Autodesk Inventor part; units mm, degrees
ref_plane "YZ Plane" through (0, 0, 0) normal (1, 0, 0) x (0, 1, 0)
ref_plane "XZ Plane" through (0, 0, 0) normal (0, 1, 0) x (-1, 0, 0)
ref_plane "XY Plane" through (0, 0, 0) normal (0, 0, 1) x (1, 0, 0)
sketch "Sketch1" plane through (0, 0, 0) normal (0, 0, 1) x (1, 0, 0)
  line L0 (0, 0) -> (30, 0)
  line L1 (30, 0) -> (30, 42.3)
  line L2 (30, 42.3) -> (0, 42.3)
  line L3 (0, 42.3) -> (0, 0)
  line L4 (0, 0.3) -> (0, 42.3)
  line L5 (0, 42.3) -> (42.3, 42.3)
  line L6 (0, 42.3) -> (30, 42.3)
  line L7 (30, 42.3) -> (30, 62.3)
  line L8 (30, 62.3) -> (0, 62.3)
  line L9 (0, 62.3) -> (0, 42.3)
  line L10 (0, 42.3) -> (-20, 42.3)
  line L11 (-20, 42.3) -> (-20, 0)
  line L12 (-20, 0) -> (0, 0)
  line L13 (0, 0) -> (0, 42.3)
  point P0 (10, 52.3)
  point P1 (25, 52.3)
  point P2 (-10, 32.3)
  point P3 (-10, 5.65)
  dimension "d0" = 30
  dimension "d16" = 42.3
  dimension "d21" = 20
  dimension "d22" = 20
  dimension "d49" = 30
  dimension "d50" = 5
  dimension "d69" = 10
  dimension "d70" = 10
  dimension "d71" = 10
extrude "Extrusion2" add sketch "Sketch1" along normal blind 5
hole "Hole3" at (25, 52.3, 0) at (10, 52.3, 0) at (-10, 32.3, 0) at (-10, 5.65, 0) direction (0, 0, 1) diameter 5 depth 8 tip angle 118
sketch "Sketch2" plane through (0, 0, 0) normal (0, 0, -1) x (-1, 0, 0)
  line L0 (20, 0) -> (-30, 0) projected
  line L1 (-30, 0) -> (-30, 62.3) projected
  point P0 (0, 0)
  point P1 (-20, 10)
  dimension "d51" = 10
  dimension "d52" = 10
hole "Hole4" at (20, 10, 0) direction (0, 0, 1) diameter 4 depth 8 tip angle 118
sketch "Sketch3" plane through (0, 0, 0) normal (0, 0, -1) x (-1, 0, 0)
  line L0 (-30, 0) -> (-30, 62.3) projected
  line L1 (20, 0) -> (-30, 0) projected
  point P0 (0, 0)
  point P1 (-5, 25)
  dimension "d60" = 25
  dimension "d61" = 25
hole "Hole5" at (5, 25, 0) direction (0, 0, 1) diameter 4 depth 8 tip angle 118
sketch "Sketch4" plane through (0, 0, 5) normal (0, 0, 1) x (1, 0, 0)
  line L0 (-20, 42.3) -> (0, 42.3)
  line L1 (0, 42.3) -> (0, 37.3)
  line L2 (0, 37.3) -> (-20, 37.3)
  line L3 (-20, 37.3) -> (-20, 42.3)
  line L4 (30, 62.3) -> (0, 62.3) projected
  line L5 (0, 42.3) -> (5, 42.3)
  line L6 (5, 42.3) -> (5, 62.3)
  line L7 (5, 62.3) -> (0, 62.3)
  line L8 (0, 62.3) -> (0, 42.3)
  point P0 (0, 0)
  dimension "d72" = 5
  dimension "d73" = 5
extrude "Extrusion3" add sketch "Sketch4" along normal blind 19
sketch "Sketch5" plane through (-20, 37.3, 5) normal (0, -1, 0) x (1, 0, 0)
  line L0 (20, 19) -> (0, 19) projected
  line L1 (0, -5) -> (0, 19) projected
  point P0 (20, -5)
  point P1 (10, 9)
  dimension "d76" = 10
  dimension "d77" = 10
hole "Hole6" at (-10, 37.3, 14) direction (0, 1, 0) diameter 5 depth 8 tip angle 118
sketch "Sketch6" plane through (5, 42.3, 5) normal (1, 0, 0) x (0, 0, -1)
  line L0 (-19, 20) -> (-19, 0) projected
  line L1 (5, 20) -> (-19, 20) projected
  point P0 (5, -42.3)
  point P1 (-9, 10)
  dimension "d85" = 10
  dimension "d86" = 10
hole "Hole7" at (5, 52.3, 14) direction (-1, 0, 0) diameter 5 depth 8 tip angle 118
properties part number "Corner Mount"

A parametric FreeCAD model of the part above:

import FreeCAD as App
import Part
import Sketcher

V = App.Vector
Q = App.Units.Quantity

doc = App.newDocument("Part")
body = doc.addObject("PartDesign::Body", "Body")

# Sketch on XY plane
sketch1 = body.newObject("Sketcher::SketchObject", "Sketch")
sketch1.AttachmentSupport = (doc.getObject("XY_Plane"), [""])
sketch1.MapMode = "FlatFace"
sketch1.addGeometry(Part.LineSegment(V(30, 0, 0), V(30, 62, 0)), False)
sketch1.addGeometry(Part.LineSegment(V(30, 62, 0), V(0, 62, 0)), False)
sketch1.addGeometry(Part.LineSegment(V(0, 62, 0), V(0, 42, 0)), False)
sketch1.addGeometry(Part.LineSegment(V(0, 42, 0), V(-20, 42, 0)), False)
sketch1.addGeometry(Part.LineSegment(V(-20, 42, 0), V(-20, 0, 0)), False)
sketch1.addGeometry(Part.LineSegment(V(-20, 0, 0), V(30, 0, 0)), False)
sketch1.addConstraint(Sketcher.Constraint("Coincident", 0, 2, 1, 1))
sketch1.addConstraint(Sketcher.Constraint("Coincident", 1, 2, 2, 1))
sketch1.addConstraint(Sketcher.Constraint("Coincident", 2, 2, 3, 1))
sketch1.addConstraint(Sketcher.Constraint("Coincident", 3, 2, 4, 1))
sketch1.addConstraint(Sketcher.Constraint("Coincident", 4, 2, 5, 1))
sketch1.addConstraint(Sketcher.Constraint("Coincident", 5, 2, 0, 1))
sketch1.addConstraint(Sketcher.Constraint("Vertical", 0))
sketch1.addConstraint(Sketcher.Constraint("Horizontal", 1))
sketch1.addConstraint(Sketcher.Constraint("Vertical", 2))
sketch1.addConstraint(Sketcher.Constraint("Horizontal", 3))
sketch1.addConstraint(Sketcher.Constraint("Vertical", 4))
sketch1.addConstraint(Sketcher.Constraint("Horizontal", 5))
sketch1.addConstraint(Sketcher.Constraint("PointOnObject", 1, 2, -2))
sketch1.addConstraint(Sketcher.Constraint("PointOnObject", 4, 2, -1))
sketch1.addConstraint(Sketcher.Constraint("Equal", 3, 2))
sketch1.addConstraint(Sketcher.Constraint("DistanceX", 1, 2, 1, 1, Q("30 mm")))
sketch1.addConstraint(Sketcher.Constraint("DistanceX", 3, 2, 3, 1, Q("20 mm")))
sketch1.addConstraint(Sketcher.Constraint("DistanceY", 4, 2, 4, 1, Q("42.3 mm")))
pad1 = body.newObject("PartDesign::Pad", "Pad")
pad1.Profile = sketch1
pad1.Length = 5

# Sketch on XY plane
sketch2 = body.newObject("Sketcher::SketchObject", "Sketch001")
sketch2.AttachmentSupport = (doc.getObject("XY_Plane"), [""])
sketch2.MapMode = "FlatFace"
sketch2.addGeometry(Part.Circle(V(25, 52.3, 0), V(0, 0, 1), 2.5), False)
sketch2.addGeometry(Part.Circle(V(10, 52.3, 0), V(0, 0, 1), 2.5), False)
sketch2.addGeometry(Part.Circle(V(-10, 32.3, 0), V(0, 0, 1), 2.5), False)
sketch2.addGeometry(Part.Circle(V(-10, 5.7, 0), V(0, 0, 1), 2.5), False)
sketch2.addConstraint(Sketcher.Constraint("Equal", 0, 1))
sketch2.addConstraint(Sketcher.Constraint("Equal", 1, 2))
sketch2.addConstraint(Sketcher.Constraint("Equal", 2, 3))
sketch2.addConstraint(Sketcher.Constraint("Horizontal", 0, 3, 1, 3))
sketch2.addConstraint(Sketcher.Constraint("Vertical", 2, 3, 3, 3))
sketch2.addConstraint(Sketcher.Constraint("Diameter", 0, Q("5 mm")))
sketch2.addConstraint(Sketcher.Constraint("DistanceX", -1, 1, 0, 3, Q("25 mm")))
sketch2.addConstraint(Sketcher.Constraint("DistanceX", -1, 1, 1, 3, Q("10 mm")))
sketch2.addConstraint(Sketcher.Constraint("DistanceX", 2, 3, -1, 1, Q("10 mm")))
sketch2.addConstraint(Sketcher.Constraint("DistanceY", 2, 3, 1, 3, Q("20 mm")))
sketch2.addConstraint(Sketcher.Constraint("DistanceY", -1, 1, 0, 3, Q("52.3 mm")))
sketch2.addConstraint(Sketcher.Constraint("DistanceY", -1, 1, 3, 3, Q("5.65 mm")))
doc.recompute()
hole = body.newObject("PartDesign::Hole", "Hole")
hole.Profile = sketch2
hole.ThreadType = "None"
hole.Diameter = 5
hole.DepthType = "Dimension"
hole.Depth = 8
hole.DrillPoint = "Angled"
hole.DrillPointAngle = 118
hole.Reversed = True

# Sketch on XY plane
sketch3 = body.newObject("Sketcher::SketchObject", "Sketch002")
sketch3.AttachmentSupport = (doc.getObject("XY_Plane"), [""])
sketch3.MapMode = "FlatFace"
sketch3.addGeometry(Part.Circle(V(20, 10, 0), V(0, 0, 1), 2), False)
sketch3.addConstraint(Sketcher.Constraint("Diameter", 0, Q("4 mm")))
sketch3.addConstraint(Sketcher.Constraint("DistanceX", -1, 1, 0, 3, Q("20 mm")))
sketch3.addConstraint(Sketcher.Constraint("DistanceY", -1, 1, 0, 3, Q("10 mm")))
doc.recompute()
hole2 = body.newObject("PartDesign::Hole", "Hole001")
hole2.Profile = sketch3
hole2.ThreadType = "None"
hole2.Diameter = 4
hole2.DepthType = "Dimension"
hole2.Depth = 8
hole2.DrillPoint = "Angled"
hole2.DrillPointAngle = 118
hole2.Reversed = True

# Sketch on XY plane
sketch4 = body.newObject("Sketcher::SketchObject", "Sketch003")
sketch4.AttachmentSupport = (doc.getObject("XY_Plane"), [""])
sketch4.MapMode = "FlatFace"
sketch4.addGeometry(Part.Circle(V(5, 25, 0), V(0, 0, 1), 2), False)
sketch4.addConstraint(Sketcher.Constraint("Diameter", 0, Q("4 mm")))
sketch4.addConstraint(Sketcher.Constraint("DistanceX", -1, 1, 0, 3, Q("5 mm")))
sketch4.addConstraint(Sketcher.Constraint("DistanceY", -1, 1, 0, 3, Q("25 mm")))
doc.recompute()
hole3 = body.newObject("PartDesign::Hole", "Hole002")
hole3.Profile = sketch4
hole3.ThreadType = "None"
hole3.Diameter = 4
hole3.DepthType = "Dimension"
hole3.Depth = 8
hole3.DrillPoint = "Angled"
hole3.DrillPointAngle = 118
hole3.Reversed = True

# Sketch on XY plane
sketch5 = body.newObject("Sketcher::SketchObject", "Sketch004")
sketch5.AttachmentSupport = (doc.getObject("XY_Plane"), [""])
sketch5.MapMode = "FlatFace"
sketch5.AttachmentOffset = App.Placement(V(0, 0, 5), App.Rotation())
sketch5.addGeometry(Part.LineSegment(V(0, 62, 0), V(0, 42, 0)), False)
sketch5.addGeometry(Part.LineSegment(V(0, 42, 0), V(5, 42, 0)), False)
sketch5.addGeometry(Part.LineSegment(V(5, 42, 0), V(5, 62, 0)), False)
sketch5.addGeometry(Part.LineSegment(V(5, 62, 0), V(0, 62, 0)), False)
sketch5.addGeometry(Part.LineSegment(V(0, 42, 0), V(-20, 42, 0)), False)
sketch5.addGeometry(Part.LineSegment(V(-20, 42, 0), V(-20, 37, 0)), False)
sketch5.addGeometry(Part.LineSegment(V(-20, 37, 0), V(0, 37, 0)), False)
sketch5.addGeometry(Part.LineSegment(V(0, 37, 0), V(0, 42, 0)), False)
sketch5.addConstraint(Sketcher.Constraint("Coincident", 0, 2, 1, 1))
sketch5.addConstraint(Sketcher.Constraint("Coincident", 1, 2, 2, 1))
sketch5.addConstraint(Sketcher.Constraint("Coincident", 2, 2, 3, 1))
sketch5.addConstraint(Sketcher.Constraint("Coincident", 3, 2, 0, 1))
sketch5.addConstraint(Sketcher.Constraint("Coincident", 4, 2, 5, 1))
sketch5.addConstraint(Sketcher.Constraint("Coincident", 5, 2, 6, 1))
sketch5.addConstraint(Sketcher.Constraint("Coincident", 6, 2, 7, 1))
sketch5.addConstraint(Sketcher.Constraint("Coincident", 7, 2, 4, 1))
sketch5.addConstraint(Sketcher.Constraint("Vertical", 0))
sketch5.addConstraint(Sketcher.Constraint("Horizontal", 1))
sketch5.addConstraint(Sketcher.Constraint("Vertical", 2))
sketch5.addConstraint(Sketcher.Constraint("Horizontal", 3))
sketch5.addConstraint(Sketcher.Constraint("Horizontal", 4))
sketch5.addConstraint(Sketcher.Constraint("Vertical", 5))
sketch5.addConstraint(Sketcher.Constraint("Horizontal", 6))
sketch5.addConstraint(Sketcher.Constraint("Vertical", 7))
sketch5.addConstraint(Sketcher.Constraint("Coincident", 7, 2, 0, 2))
sketch5.addConstraint(Sketcher.Constraint("PointOnObject", 0, 2, -2))
sketch5.addConstraint(Sketcher.Constraint("Equal", 6, 0))
sketch5.addConstraint(Sketcher.Constraint("Equal", 3, 5))
sketch5.addConstraint(Sketcher.Constraint("DistanceX", 1, 1, 1, 2, Q("5 mm")))
sketch5.addConstraint(Sketcher.Constraint("DistanceX", 4, 2, 4, 1, Q("20 mm")))
sketch5.addConstraint(Sketcher.Constraint("DistanceY", -1, 1, 0, 2, Q("42.3 mm")))
pad2 = body.newObject("PartDesign::Pad", "Pad001")
pad2.Profile = sketch5
pad2.Length = 19

# Sketch on XZ plane
sketch6 = body.newObject("Sketcher::SketchObject", "Sketch005")
sketch6.AttachmentSupport = (doc.getObject("XZ_Plane"), [""])
sketch6.MapMode = "FlatFace"
sketch6.AttachmentOffset = App.Placement(V(0, 0, -37.3), App.Rotation())
sketch6.addGeometry(Part.Circle(V(-10, 14, 0), V(0, 0, 1), 2.5), False)
sketch6.addConstraint(Sketcher.Constraint("Diameter", 0, Q("5 mm")))
sketch6.addConstraint(Sketcher.Constraint("DistanceX", 0, 3, -1, 1, Q("10 mm")))
sketch6.addConstraint(Sketcher.Constraint("DistanceY", -1, 1, 0, 3, Q("14 mm")))
doc.recompute()
hole4 = body.newObject("PartDesign::Hole", "Hole003")
hole4.Profile = sketch6
hole4.ThreadType = "None"
hole4.Diameter = 5
hole4.DepthType = "Dimension"
hole4.Depth = 8
hole4.DrillPoint = "Angled"
hole4.DrillPointAngle = 118

# Sketch on YZ plane
sketch7 = body.newObject("Sketcher::SketchObject", "Sketch006")
sketch7.AttachmentSupport = (doc.getObject("YZ_Plane"), [""])
sketch7.MapMode = "FlatFace"
sketch7.AttachmentOffset = App.Placement(V(0, 0, 5), App.Rotation())
sketch7.addGeometry(Part.Circle(V(52.3, 14, 0), V(0, 0, 1), 2.5), False)
sketch7.addConstraint(Sketcher.Constraint("Diameter", 0, Q("5 mm")))
sketch7.addConstraint(Sketcher.Constraint("DistanceY", -1, 1, 0, 3, Q("14 mm")))
sketch7.addConstraint(Sketcher.Constraint("DistanceX", -1, 1, 0, 3, Q("52.3 mm")))
doc.recompute()
hole5 = body.newObject("PartDesign::Hole", "Hole004")
hole5.Profile = sketch7
hole5.ThreadType = "None"
hole5.Diameter = 5
hole5.DepthType = "Dimension"
hole5.Depth = 8
hole5.DrillPoint = "Angled"
hole5.DrillPointAngle = 118

doc.recompute()
